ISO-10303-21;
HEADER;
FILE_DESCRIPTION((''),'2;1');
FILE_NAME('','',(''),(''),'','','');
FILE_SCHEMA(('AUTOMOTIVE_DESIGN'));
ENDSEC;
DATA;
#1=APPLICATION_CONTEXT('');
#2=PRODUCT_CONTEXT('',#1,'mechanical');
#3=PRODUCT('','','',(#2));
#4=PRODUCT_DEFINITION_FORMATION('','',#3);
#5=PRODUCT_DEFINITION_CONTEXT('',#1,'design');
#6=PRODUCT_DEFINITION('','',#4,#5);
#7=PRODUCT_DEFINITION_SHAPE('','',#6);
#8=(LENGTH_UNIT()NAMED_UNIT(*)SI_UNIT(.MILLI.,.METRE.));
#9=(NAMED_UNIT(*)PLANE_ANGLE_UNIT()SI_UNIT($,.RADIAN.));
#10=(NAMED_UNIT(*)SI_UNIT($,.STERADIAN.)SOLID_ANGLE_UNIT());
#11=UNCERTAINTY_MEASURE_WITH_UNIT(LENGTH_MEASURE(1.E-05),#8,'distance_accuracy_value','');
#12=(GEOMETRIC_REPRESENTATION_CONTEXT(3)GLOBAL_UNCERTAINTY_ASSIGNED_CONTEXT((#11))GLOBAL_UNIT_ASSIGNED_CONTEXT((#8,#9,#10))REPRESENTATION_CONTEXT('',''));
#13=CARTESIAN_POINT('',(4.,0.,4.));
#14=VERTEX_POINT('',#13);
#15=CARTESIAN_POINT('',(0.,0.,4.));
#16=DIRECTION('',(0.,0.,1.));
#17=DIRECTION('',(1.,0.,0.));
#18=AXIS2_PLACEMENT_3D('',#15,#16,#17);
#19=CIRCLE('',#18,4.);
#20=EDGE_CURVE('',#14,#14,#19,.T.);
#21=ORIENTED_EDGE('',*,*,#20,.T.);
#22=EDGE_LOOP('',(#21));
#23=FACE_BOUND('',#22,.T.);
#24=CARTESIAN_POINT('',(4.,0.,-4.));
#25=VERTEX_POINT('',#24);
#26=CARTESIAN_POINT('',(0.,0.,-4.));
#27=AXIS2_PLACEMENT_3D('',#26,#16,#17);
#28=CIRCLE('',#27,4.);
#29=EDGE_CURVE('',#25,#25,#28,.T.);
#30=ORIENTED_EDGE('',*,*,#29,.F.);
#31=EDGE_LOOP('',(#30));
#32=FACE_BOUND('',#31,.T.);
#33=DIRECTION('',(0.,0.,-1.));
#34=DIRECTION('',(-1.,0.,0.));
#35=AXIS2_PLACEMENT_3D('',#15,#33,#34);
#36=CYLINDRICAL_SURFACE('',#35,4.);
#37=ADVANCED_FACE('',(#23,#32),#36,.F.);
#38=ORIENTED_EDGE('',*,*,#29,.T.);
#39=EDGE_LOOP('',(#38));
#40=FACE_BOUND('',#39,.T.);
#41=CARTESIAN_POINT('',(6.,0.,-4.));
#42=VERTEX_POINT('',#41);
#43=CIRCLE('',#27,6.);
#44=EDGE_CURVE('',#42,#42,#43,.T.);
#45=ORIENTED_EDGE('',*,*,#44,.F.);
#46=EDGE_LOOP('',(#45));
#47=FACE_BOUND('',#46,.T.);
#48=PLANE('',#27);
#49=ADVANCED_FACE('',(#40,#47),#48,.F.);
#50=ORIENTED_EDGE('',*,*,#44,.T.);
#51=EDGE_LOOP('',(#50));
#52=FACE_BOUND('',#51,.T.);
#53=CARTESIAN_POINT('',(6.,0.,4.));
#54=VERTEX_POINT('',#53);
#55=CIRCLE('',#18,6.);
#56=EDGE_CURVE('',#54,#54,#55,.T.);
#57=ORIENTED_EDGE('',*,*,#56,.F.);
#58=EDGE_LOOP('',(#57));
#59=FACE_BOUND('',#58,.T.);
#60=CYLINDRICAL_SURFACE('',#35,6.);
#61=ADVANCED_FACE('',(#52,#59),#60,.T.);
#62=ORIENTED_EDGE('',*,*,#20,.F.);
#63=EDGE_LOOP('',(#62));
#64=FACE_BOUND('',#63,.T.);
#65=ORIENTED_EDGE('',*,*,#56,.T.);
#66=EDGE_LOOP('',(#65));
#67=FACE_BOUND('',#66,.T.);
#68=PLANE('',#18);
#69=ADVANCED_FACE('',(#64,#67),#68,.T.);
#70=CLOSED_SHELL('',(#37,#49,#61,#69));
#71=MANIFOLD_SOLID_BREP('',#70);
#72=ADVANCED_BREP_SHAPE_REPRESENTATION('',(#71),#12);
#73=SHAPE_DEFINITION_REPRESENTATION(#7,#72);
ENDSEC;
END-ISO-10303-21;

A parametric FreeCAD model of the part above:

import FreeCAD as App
import Part
import Sketcher

V = App.Vector

doc = App.newDocument("Part")
body = doc.addObject("PartDesign::Body", "Body")

# Sketch on XY plane
sketch1 = body.newObject("Sketcher::SketchObject", "Sketch")
sketch1.AttachmentSupport = (doc.getObject("XY_Plane"), [""])
sketch1.MapMode = "FlatFace"
sketch1.addGeometry([
    Part.Circle(V(0, 0, 0), V(0, 0, 1), 6),
    Part.Circle(V(0, 0, 0), V(0, 0, 1), 4),
], False)
sketch1.addConstraint([
    Sketcher.Constraint("Coincident", 0, 3, -1, 1),
    Sketcher.Constraint("Coincident", 1, 3, -1, 1),
    Sketcher.Constraint("Diameter", 0, 12.0),
    Sketcher.Constraint("Diameter", 1, 8.0),
])
pad1 = body.newObject("PartDesign::Pad", "Pad")
pad1.Profile = sketch1
pad1.Length = 8
pad1.Midplane = True

doc.recompute()
